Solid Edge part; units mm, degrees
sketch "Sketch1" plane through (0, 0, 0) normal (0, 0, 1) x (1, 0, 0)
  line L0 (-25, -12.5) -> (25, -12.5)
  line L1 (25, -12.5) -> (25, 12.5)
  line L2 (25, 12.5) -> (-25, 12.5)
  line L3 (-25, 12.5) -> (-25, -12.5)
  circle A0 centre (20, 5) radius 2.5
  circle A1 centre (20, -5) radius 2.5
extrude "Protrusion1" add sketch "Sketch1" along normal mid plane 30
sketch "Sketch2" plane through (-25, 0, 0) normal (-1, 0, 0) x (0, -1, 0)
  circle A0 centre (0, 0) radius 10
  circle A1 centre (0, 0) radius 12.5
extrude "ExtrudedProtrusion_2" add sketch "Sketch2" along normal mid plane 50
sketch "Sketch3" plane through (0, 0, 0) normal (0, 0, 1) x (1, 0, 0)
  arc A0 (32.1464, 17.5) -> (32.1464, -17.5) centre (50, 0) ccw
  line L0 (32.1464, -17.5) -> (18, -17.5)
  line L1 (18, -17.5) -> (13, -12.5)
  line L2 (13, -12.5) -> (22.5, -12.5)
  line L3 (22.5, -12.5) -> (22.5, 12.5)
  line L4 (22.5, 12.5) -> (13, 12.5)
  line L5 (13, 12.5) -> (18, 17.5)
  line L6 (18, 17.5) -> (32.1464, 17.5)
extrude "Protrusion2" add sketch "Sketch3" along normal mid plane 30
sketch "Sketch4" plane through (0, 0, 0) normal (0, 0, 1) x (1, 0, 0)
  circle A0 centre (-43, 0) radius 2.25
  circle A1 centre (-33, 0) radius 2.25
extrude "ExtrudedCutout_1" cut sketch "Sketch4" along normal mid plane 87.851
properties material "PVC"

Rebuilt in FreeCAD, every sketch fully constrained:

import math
import FreeCAD as App
import Part
import Sketcher

V = App.Vector
Q = App.Units.Quantity


def add_polygon(sketch, points):
    """Adds a closed chain of lines whose ends are joined by coincident constraints."""
    first, n = sketch.GeometryCount, len(points)
    for a, b in zip(points, points[1:] + points[:1]):
        sketch.addGeometry(Part.LineSegment(App.Vector(*a, 0), App.Vector(*b, 0)), False)
    for i in range(n):
        sketch.addConstraint(Sketcher.Constraint("Coincident", first + i, 2, first + (i + 1) % n, 1))

doc = App.newDocument("Part")
body = doc.addObject("PartDesign::Body", "Body")

sketch1 = body.newObject("Sketcher::SketchObject", "Sketch")
sketch1.AttachmentSupport = (doc.getObject("XY_Plane"), [""])
sketch1.MapMode = "FlatFace"
add_polygon(sketch1, [(-25, 12.5), (-25, -12.5), (25, -12.5), (25, 12.5)])
sketch1.addGeometry(Part.Circle(V(20, -5, 0), V(0, 0, 1), 2.5), False)
sketch1.addGeometry(Part.Circle(V(20, 5, 0), V(0, 0, 1), 2.5), False)
sketch1.addConstraint([
    Sketcher.Constraint("Vertical", 0),
    Sketcher.Constraint("Horizontal", 1),
    Sketcher.Constraint("Vertical", 2),
    Sketcher.Constraint("Horizontal", 3),
    Sketcher.Constraint("Equal", 4, 5),
    Sketcher.Constraint("Symmetric", 0, 2, 2, 2, -1, 1),
    Sketcher.Constraint("Symmetric", 4, 3, 5, 3, -1),
    Sketcher.Constraint("Diameter", 4, Q("5 mm")),
    Sketcher.Constraint("DistanceX", 1, 1, 1, 2, Q("50 mm")),
    Sketcher.Constraint("DistanceY", 0, 2, 0, 1, Q("25 mm")),
    Sketcher.Constraint("DistanceX", -1, 1, 4, 3, Q("20 mm")),
    Sketcher.Constraint("DistanceY", 4, 3, -1, 1, Q("5 mm")),
])
pad1 = body.newObject("PartDesign::Pad", "Pad")
pad1.Profile = sketch1
pad1.Length = 30
pad1.Midplane = True

sketch2 = body.newObject("Sketcher::SketchObject", "Sketch001")
sketch2.AttachmentSupport = (doc.getObject("YZ_Plane"), [""])
sketch2.MapMode = "FlatFace"
sketch2.AttachmentOffset = App.Placement(V(0, 0, -25), App.Rotation())
sketch2.addGeometry([
    Part.Circle(V(0, 0, 0), V(0, 0, 1), 12),
    Part.Circle(V(0, 0, 0), V(0, 0, 1), 10),
], False)
sketch2.addConstraint([
    Sketcher.Constraint("Coincident", 0, 3, -1, 1),
    Sketcher.Constraint("Coincident", 1, 3, -1, 1),
    Sketcher.Constraint("Diameter", 0, Q("25 mm")),
    Sketcher.Constraint("Diameter", 1, Q("20 mm")),
])
pad2 = body.newObject("PartDesign::Pad", "Pad001")
pad2.Profile = sketch2
pad2.Length = 50
pad2.Midplane = True

sketch3 = body.newObject("Sketcher::SketchObject", "Sketch002")
sketch3.AttachmentSupport = (doc.getObject("XY_Plane"), [""])
sketch3.MapMode = "FlatFace"
sketch3.addGeometry([
    Part.ArcOfCircle(Part.Circle(V(50, 0, 0), V(0, 0, 1), 25), math.radians(136), math.radians(224)),
    Part.LineSegment(V(32, 18, 0), V(18, 18, 0)),
    Part.LineSegment(V(18, 18, 0), V(13, 12, 0)),
    Part.LineSegment(V(13, 12, 0), V(22, 12, 0)),
    Part.LineSegment(V(22, 12, 0), V(22, -12, 0)),
    Part.LineSegment(V(22, -12, 0), V(13, -12, 0)),
    Part.LineSegment(V(13, -12, 0), V(18, -18, 0)),
    Part.LineSegment(V(18, -18, 0), V(32, -18, 0)),
], False)
sketch3.addConstraint([
    Sketcher.Constraint("Coincident", 0, 1, 1, 1),
    Sketcher.Constraint("Coincident", 1, 2, 2, 1),
    Sketcher.Constraint("Coincident", 2, 2, 3, 1),
    Sketcher.Constraint("Coincident", 3, 2, 4, 1),
    Sketcher.Constraint("Coincident", 4, 2, 5, 1),
    Sketcher.Constraint("Coincident", 5, 2, 6, 1),
    Sketcher.Constraint("Coincident", 6, 2, 7, 1),
    Sketcher.Constraint("Coincident", 7, 2, 0, 2),
    Sketcher.Constraint("Horizontal", 1),
    Sketcher.Constraint("Horizontal", 3),
    Sketcher.Constraint("Vertical", 4),
    Sketcher.Constraint("Horizontal", 5),
    Sketcher.Constraint("Horizontal", 7),
    Sketcher.Constraint("Symmetric", 2, 2, 5, 2, -1),
    Sketcher.Constraint("Symmetric", 1, 2, 6, 2, -1),
    Sketcher.Constraint("PointOnObject", 0, 3, -1),
    Sketcher.Constraint("Perpendicular", 2, 6),
    Sketcher.Constraint("Radius", 0, Q("25 mm")),
    Sketcher.Constraint("DistanceY", 4, 2, 4, 1, Q("25 mm")),
    Sketcher.Constraint("DistanceX", 3, 1, 3, 2, Q("9.5 mm")),
    Sketcher.Constraint("DistanceX", -1, 1, 0, 3, Q("50 mm")),
    Sketcher.Constraint("DistanceX", -1, 1, 1, 2, Q("18 mm")),
    Sketcher.Constraint("DistanceX", -1, 1, 2, 2, Q("13 mm")),
])
pad3 = body.newObject("PartDesign::Pad", "Pad002")
pad3.Profile = sketch3
pad3.Length = 30
pad3.Midplane = True

sketch4 = body.newObject("Sketcher::SketchObject", "Sketch003")
sketch4.AttachmentSupport = (doc.getObject("XY_Plane"), [""])
sketch4.MapMode = "FlatFace"
sketch4.addGeometry([
    Part.Circle(V(-43, 0, 0), V(0, 0, 1), 2.2),
    Part.Circle(V(-33, 0, 0), V(0, 0, 1), 2.2),
], False)
sketch4.addConstraint([
    Sketcher.Constraint("Equal", 0, 1),
    Sketcher.Constraint("PointOnObject", 0, 3, -1),
    Sketcher.Constraint("PointOnObject", 1, 3, -1),
    Sketcher.Constraint("Diameter", 0, Q("4.5 mm")),
    Sketcher.Constraint("DistanceX", 0, 3, -1, 1, Q("43 mm")),
    Sketcher.Constraint("DistanceX", 1, 3, -1, 1, Q("33 mm")),
])
pocket1 = body.newObject("PartDesign::Pocket", "Pocket")
pocket1.Profile = sketch4
pocket1.Length = 87.851
pocket1.Midplane = True

doc.recompute()
